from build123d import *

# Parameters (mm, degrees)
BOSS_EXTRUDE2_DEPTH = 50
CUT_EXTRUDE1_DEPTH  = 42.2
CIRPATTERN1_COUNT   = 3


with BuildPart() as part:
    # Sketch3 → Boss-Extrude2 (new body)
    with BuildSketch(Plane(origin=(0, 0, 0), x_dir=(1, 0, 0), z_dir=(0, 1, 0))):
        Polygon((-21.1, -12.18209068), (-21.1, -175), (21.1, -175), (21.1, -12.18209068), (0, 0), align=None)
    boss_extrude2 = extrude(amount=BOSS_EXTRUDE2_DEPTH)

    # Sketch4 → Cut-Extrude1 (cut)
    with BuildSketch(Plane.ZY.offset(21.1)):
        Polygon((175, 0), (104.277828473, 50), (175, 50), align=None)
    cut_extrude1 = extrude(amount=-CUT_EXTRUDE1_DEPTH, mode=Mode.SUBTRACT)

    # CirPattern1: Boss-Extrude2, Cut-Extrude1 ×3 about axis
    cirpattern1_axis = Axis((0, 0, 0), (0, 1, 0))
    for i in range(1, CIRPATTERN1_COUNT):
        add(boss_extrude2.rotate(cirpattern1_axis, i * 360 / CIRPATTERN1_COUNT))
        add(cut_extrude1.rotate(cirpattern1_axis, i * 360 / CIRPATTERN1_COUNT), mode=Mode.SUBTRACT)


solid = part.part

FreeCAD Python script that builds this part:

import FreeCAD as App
import Part
import Sketcher
from FreeCAD import Vector
Q = App.Units.Quantity


def add_polygon(sketch, points):
    """Adds a closed chain of lines whose ends are joined by coincident constraints."""
    first, n = sketch.GeometryCount, len(points)
    for a, b in zip(points, points[1:] + points[:1]):
        sketch.addGeometry(Part.LineSegment(App.Vector(*a, 0), App.Vector(*b, 0)), False)
    for i in range(n):
        sketch.addConstraint(Sketcher.Constraint("Coincident", first + i, 2, first + (i + 1) % n, 1))

doc = App.newDocument("Part")
params = doc.addObject("Spreadsheet::Sheet", "Params")
for row, (alias, value) in enumerate([
    ("sketch1_width", "42.2 mm"),
    ("pad1_length", "50 mm"),
    ("sketch2_width", "50 mm"),
    ("pocket1_length", "42.2 mm"),
], start=1):
    params.set(f"A{row}", alias)
    params.set(f"B{row}", "=" + value)
    params.setAlias(f"B{row}", alias)

body = doc.addObject("PartDesign::Body", "Body")

# Sketch on XZ plane
sketch1 = body.newObject("Sketcher::SketchObject", "Sketch")
sketch1.AttachmentSupport = (doc.getObject("XZ_Plane"), [""])
sketch1.MapMode = "FlatFace"
add_polygon(sketch1, [(-21.1, 12.182091), (-21.1, 175), (21.1, 175), (21.1, 12.182091), (0, 0)])  # lines 0-4
sketch1.addConstraint(Sketcher.Constraint("Vertical", 0))
sketch1.addConstraint(Sketcher.Constraint("Horizontal", 1))
sketch1.addConstraint(Sketcher.Constraint("Vertical", 2))
sketch1.addConstraint(Sketcher.Constraint("Coincident", 3, 2, -1, 1))
sketch1.addConstraint(Sketcher.Constraint("Symmetric", 2, 2, 4, 2, -2))
sketch1.addConstraint(Sketcher.Constraint("Angle", 3, Q("-150 deg")))
sketch1.addConstraint(Sketcher.Constraint("DistanceX", 1, 1, 1, 2, Q("42.2 mm")))
sketch1.addConstraint(Sketcher.Constraint("DistanceY", -1, 1, 0, 2, Q("175 mm")))
sketch1.setExpression("Constraints[11]", "Params.sketch1_width")
pad1 = body.newObject("PartDesign::Pad", "Pad")
pad1.Profile = sketch1
pad1.setExpression("Length", "Params.pad1_length")
pad1.Reversed = True

# Sketch on YZ plane
sketch2 = body.newObject("Sketcher::SketchObject", "Sketch001")
sketch2.AttachmentSupport = (doc.getObject("YZ_Plane"), [""])
sketch2.MapMode = "FlatFace"
sketch2.AttachmentOffset = App.Placement(Vector(0, 0, -21.1), App.Rotation())
add_polygon(sketch2, [(50, 104.277828), (0, 175), (50, 175)])  # lines 0-2
sketch2.addConstraint(Sketcher.Constraint("Horizontal", 1))
sketch2.addConstraint(Sketcher.Constraint("Vertical", 2))
sketch2.addConstraint(Sketcher.Constraint("PointOnObject", 0, 2, -2))
sketch2.addConstraint(Sketcher.Constraint("DistanceX", 1, 1, 1, 2, Q("50 mm")))
sketch2.addConstraint(Sketcher.Constraint("DistanceY", -1, 1, 0, 2, Q("175 mm")))
sketch2.addConstraint(Sketcher.Constraint("Angle", 0, Q("125.26 deg")))
sketch2.setExpression("Constraints[6]", "Params.sketch2_width")
pocket1 = body.newObject("PartDesign::Pocket", "Pocket")
pocket1.Profile = sketch2
pocket1.setExpression("Length", "Params.pocket1_length")
pocket1.Reversed = True
doc.recompute()

polarpattern = body.newObject("PartDesign::PolarPattern", "PolarPattern")
polarpattern.Originals = [pad1, pocket1]
polarpattern.Axis = (doc.getObject("Y_Axis"), [""])
polarpattern.Angle = 360
polarpattern.Occurrences = 3
body.Tip = polarpattern

doc.recompute()
